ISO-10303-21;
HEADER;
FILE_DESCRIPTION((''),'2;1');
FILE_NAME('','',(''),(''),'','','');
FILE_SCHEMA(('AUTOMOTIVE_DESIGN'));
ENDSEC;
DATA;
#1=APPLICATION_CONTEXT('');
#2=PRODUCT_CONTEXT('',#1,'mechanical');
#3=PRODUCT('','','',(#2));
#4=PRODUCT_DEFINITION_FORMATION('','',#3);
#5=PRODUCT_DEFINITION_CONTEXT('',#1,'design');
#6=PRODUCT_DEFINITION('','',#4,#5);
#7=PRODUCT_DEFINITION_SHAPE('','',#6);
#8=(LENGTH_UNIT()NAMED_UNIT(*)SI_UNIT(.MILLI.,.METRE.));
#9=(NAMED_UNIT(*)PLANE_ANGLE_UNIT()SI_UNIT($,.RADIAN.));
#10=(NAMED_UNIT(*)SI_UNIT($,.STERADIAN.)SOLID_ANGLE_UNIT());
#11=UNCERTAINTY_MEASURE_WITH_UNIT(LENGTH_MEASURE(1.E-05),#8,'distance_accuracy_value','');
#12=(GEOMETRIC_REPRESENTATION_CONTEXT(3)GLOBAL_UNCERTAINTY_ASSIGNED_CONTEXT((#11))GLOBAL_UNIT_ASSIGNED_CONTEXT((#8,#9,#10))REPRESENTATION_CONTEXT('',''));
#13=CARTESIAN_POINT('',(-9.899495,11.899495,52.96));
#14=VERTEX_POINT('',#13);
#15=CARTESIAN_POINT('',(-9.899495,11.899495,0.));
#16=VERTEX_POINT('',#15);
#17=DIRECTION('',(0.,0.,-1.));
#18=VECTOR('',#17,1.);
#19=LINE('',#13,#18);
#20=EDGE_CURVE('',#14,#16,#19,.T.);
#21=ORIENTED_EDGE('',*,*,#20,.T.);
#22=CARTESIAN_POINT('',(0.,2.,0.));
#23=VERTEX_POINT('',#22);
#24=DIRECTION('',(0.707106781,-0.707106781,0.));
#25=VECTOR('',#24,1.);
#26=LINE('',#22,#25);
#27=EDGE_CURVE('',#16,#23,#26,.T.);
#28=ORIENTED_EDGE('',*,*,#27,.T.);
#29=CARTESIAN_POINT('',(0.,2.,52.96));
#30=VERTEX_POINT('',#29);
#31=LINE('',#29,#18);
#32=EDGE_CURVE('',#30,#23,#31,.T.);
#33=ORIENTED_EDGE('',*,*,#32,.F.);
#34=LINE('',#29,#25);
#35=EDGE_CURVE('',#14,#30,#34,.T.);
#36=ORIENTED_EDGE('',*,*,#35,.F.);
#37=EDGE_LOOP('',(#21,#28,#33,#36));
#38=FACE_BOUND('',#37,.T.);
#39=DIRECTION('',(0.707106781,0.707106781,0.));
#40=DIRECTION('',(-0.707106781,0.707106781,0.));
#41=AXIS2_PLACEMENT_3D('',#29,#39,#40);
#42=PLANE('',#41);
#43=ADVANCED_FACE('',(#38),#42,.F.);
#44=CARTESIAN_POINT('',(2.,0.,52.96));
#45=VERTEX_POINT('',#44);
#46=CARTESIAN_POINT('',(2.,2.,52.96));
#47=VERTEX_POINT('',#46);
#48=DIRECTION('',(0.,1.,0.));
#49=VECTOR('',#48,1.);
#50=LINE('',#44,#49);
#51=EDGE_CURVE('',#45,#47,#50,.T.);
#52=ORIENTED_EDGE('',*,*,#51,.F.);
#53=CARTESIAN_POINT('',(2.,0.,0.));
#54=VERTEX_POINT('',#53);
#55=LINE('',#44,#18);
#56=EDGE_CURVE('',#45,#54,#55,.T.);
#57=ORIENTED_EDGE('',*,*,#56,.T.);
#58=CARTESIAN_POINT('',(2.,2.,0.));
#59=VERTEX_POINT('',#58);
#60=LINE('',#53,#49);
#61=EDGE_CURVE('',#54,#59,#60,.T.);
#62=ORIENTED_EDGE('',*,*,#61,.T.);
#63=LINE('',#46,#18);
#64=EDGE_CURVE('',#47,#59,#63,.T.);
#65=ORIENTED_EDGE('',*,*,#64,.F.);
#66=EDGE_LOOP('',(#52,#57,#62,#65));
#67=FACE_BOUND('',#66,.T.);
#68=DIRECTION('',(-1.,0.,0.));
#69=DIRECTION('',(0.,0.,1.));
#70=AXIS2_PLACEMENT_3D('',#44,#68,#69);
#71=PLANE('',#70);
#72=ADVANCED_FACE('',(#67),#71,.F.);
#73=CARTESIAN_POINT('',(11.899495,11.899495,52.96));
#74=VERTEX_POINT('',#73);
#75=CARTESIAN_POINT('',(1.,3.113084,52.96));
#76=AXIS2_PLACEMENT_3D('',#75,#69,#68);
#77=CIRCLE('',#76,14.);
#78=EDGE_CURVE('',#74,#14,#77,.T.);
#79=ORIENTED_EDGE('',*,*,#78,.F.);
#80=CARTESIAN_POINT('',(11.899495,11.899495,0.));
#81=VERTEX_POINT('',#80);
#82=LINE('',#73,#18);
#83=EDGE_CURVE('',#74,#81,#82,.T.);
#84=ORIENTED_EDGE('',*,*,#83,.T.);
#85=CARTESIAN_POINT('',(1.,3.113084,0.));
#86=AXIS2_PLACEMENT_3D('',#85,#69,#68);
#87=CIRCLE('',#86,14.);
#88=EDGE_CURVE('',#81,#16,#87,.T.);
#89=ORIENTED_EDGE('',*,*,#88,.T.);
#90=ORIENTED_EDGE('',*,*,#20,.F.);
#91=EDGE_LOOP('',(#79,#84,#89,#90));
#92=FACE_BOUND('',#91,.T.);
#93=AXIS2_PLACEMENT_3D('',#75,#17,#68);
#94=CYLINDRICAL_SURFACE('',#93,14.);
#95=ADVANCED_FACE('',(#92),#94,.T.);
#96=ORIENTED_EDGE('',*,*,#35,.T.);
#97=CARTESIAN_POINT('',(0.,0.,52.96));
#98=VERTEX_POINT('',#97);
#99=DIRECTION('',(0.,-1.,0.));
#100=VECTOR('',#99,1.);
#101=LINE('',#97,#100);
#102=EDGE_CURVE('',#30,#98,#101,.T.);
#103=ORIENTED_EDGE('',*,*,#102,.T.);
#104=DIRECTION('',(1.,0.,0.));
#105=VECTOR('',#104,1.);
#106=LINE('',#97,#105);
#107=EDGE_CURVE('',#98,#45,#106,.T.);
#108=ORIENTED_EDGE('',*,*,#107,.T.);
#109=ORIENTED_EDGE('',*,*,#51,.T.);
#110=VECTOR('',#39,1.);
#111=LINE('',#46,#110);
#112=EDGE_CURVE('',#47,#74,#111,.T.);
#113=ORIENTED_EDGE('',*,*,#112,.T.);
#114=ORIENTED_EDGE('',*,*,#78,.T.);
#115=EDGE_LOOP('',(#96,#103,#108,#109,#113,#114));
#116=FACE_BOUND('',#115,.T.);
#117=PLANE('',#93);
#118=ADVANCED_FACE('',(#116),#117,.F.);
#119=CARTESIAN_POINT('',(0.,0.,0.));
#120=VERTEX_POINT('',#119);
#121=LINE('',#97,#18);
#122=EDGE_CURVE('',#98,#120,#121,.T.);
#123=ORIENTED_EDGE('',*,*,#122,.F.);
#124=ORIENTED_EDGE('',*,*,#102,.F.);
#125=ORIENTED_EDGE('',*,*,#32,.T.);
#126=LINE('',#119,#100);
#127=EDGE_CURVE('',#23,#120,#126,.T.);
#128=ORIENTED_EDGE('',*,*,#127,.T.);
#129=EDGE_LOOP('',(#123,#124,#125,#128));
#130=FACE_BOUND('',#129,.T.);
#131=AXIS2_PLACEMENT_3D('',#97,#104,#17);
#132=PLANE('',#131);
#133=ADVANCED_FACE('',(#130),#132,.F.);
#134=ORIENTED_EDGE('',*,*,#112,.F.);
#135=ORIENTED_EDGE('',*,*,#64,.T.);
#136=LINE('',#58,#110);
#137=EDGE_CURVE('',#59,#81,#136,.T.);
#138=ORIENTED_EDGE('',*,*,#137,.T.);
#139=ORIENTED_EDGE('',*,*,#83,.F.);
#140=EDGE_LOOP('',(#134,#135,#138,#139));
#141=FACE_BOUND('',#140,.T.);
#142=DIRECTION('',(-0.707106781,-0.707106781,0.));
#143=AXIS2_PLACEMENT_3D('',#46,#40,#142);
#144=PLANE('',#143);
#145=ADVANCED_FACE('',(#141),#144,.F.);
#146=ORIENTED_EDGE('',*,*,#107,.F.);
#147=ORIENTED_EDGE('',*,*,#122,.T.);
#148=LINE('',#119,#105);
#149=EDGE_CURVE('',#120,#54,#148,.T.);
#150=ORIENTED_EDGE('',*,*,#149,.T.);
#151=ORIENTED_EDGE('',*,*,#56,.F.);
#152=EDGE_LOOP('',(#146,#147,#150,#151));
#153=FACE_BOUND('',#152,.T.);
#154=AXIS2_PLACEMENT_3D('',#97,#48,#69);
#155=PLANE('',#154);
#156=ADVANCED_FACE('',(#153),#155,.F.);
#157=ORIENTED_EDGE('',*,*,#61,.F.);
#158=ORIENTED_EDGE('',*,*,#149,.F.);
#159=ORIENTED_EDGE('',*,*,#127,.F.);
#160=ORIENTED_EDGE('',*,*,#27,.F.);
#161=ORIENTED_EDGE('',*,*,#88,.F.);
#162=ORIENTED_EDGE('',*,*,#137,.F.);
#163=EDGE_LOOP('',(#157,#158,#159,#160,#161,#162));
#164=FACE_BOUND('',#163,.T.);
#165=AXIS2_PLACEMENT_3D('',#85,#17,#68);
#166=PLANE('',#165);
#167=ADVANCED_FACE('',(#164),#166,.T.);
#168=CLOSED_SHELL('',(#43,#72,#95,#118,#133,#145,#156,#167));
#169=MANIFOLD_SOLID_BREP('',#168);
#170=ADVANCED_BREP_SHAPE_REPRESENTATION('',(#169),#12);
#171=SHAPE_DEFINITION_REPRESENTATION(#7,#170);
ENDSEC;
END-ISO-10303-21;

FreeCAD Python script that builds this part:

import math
import FreeCAD as App
import Part
import Sketcher

V = App.Vector

doc = App.newDocument("Part")
params = doc.addObject("Spreadsheet::Sheet", "Params")
for row, (alias, value) in enumerate([
    ("sketch1_radius", "14 mm"),
    ("sketch1_width", "2 mm"),
    ("sketch1_length", "14 mm"),
    ("pad1_length", "52.96 mm"),
], start=1):
    params.set(f"A{row}", alias)
    params.set(f"B{row}", "=" + value)
    params.setAlias(f"B{row}", alias)

body = doc.addObject("PartDesign::Body", "Body")

# Sketch on XY plane
sketch1 = body.newObject("Sketcher::SketchObject", "Sketch")
sketch1.AttachmentSupport = (doc.getObject("XY_Plane"), [""])
sketch1.MapMode = "FlatFace"
sketch1.addGeometry(Part.LineSegment(V(0, 2, 0), V(0, 0, 0)), False)
sketch1.addGeometry(Part.LineSegment(V(0, 0, 0), V(2, 0, 0)), False)
sketch1.addGeometry(Part.LineSegment(V(2, 0, 0), V(2, 2, 0)), False)
sketch1.addGeometry(Part.LineSegment(V(2, 2, 0), V(11.9, 11.9, 0)), False)
sketch1.addGeometry(Part.ArcOfCircle(Part.Circle(V(1, 3.1, 0), V(0, 0, 1), 14), math.radians(39), math.radians(141)), False)
sketch1.addGeometry(Part.LineSegment(V(-9.9, 11.9, 0), V(0, 2, 0)), False)
sketch1.addConstraint(Sketcher.Constraint("Coincident", 0, 2, 1, 1))
sketch1.addConstraint(Sketcher.Constraint("Coincident", 1, 2, 2, 1))
sketch1.addConstraint(Sketcher.Constraint("Coincident", 2, 2, 3, 1))
sketch1.addConstraint(Sketcher.Constraint("Coincident", 3, 2, 4, 1))
sketch1.addConstraint(Sketcher.Constraint("Coincident", 4, 2, 5, 1))
sketch1.addConstraint(Sketcher.Constraint("Coincident", 5, 2, 0, 1))
sketch1.addConstraint(Sketcher.Constraint("Vertical", 0))
sketch1.addConstraint(Sketcher.Constraint("Horizontal", 1))
sketch1.addConstraint(Sketcher.Constraint("Vertical", 2))
sketch1.addConstraint(Sketcher.Constraint("Coincident", 0, 2, -1, 1))
sketch1.addConstraint(Sketcher.Constraint("Perpendicular", 3, 5))
sketch1.addConstraint(Sketcher.Constraint("Horizontal", 3, 2, 4, 2))
sketch1.addConstraint(Sketcher.Constraint("Horizontal", 2, 2, 5, 2))
sketch1.addConstraint(Sketcher.Constraint("Equal", 1, 0))
sketch1.addConstraint(Sketcher.Constraint("Equal", 3, 5))
sketch1.addConstraint(Sketcher.Constraint("Radius", 4, 14.0))
sketch1.addConstraint(Sketcher.Constraint("DistanceX", 1, 1, 1, 2, 2.0))
sketch1.addConstraint(Sketcher.Constraint("Distance", 3, 14.0))
sketch1.setExpression("Constraints[15]", "Params.sketch1_radius")
sketch1.setExpression("Constraints[16]", "Params.sketch1_width")
sketch1.setExpression("Constraints[17]", "Params.sketch1_length")
pad1 = body.newObject("PartDesign::Pad", "Pad")
pad1.Profile = sketch1
pad1.setExpression("Length", "Params.pad1_length")

doc.recompute()
